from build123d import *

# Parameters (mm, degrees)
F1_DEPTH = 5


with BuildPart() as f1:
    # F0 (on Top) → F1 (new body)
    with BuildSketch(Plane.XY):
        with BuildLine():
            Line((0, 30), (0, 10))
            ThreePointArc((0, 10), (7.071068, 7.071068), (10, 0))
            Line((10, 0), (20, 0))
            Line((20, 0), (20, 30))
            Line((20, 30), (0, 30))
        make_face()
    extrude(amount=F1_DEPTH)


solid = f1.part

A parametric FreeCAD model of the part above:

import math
import FreeCAD as App
import Part
import Sketcher
from FreeCAD import Vector

doc = App.newDocument("Part")
body = doc.addObject("PartDesign::Body", "Body")

# Sketch on XY plane
sketch1 = doc.addObject("Sketcher::SketchObject", "Sketch")
body.addObject(sketch1)
sketch1.AttachmentSupport = (doc.XY_Plane, [""])
sketch1.MapMode = "FlatFace"
sketch1.addGeometry([
    Part.LineSegment(Vector(0, 30, 0), Vector(0, 10, 0)),  # 0
    Part.ArcOfCircle(Part.Circle(Vector(0, 0, 0), Vector(0, 0, 1), 10), math.radians(0), math.radians(90)),  # 1
    Part.LineSegment(Vector(10, 0, 0), Vector(20, 0, 0)),  # 2
    Part.LineSegment(Vector(20, 0, 0), Vector(20, 30, 0)),  # 3
    Part.LineSegment(Vector(20, 30, 0), Vector(0, 30, 0)),  # 4
], False)
sketch1.addConstraint([
    Sketcher.Constraint("Coincident", 0, 2, 1, 2),
    Sketcher.Constraint("Coincident", 1, 1, 2, 1),
    Sketcher.Constraint("Coincident", 2, 2, 3, 1),
    Sketcher.Constraint("Coincident", 3, 2, 4, 1),
    Sketcher.Constraint("Coincident", 4, 2, 0, 1),
    Sketcher.Constraint("Vertical", 0),
    Sketcher.Constraint("Horizontal", 2),
    Sketcher.Constraint("Vertical", 3),
    Sketcher.Constraint("Horizontal", 4),
    Sketcher.Constraint("Coincident", 1, 3, -1, 1),
    Sketcher.Constraint("PointOnObject", 0, 2, -2),
    Sketcher.Constraint("PointOnObject", 1, 1, -1),
    Sketcher.Constraint("Equal", 4, 0),
    Sketcher.Constraint("Radius", 1, 9.999999),
    Sketcher.Constraint("DistanceX", 2, 1, 2, 2, 10.0),
])
pad1 = doc.addObject("PartDesign::Pad", "Pad")
body.addObject(pad1)
pad1.Profile = sketch1
pad1.Length = 5

doc.recompute()
